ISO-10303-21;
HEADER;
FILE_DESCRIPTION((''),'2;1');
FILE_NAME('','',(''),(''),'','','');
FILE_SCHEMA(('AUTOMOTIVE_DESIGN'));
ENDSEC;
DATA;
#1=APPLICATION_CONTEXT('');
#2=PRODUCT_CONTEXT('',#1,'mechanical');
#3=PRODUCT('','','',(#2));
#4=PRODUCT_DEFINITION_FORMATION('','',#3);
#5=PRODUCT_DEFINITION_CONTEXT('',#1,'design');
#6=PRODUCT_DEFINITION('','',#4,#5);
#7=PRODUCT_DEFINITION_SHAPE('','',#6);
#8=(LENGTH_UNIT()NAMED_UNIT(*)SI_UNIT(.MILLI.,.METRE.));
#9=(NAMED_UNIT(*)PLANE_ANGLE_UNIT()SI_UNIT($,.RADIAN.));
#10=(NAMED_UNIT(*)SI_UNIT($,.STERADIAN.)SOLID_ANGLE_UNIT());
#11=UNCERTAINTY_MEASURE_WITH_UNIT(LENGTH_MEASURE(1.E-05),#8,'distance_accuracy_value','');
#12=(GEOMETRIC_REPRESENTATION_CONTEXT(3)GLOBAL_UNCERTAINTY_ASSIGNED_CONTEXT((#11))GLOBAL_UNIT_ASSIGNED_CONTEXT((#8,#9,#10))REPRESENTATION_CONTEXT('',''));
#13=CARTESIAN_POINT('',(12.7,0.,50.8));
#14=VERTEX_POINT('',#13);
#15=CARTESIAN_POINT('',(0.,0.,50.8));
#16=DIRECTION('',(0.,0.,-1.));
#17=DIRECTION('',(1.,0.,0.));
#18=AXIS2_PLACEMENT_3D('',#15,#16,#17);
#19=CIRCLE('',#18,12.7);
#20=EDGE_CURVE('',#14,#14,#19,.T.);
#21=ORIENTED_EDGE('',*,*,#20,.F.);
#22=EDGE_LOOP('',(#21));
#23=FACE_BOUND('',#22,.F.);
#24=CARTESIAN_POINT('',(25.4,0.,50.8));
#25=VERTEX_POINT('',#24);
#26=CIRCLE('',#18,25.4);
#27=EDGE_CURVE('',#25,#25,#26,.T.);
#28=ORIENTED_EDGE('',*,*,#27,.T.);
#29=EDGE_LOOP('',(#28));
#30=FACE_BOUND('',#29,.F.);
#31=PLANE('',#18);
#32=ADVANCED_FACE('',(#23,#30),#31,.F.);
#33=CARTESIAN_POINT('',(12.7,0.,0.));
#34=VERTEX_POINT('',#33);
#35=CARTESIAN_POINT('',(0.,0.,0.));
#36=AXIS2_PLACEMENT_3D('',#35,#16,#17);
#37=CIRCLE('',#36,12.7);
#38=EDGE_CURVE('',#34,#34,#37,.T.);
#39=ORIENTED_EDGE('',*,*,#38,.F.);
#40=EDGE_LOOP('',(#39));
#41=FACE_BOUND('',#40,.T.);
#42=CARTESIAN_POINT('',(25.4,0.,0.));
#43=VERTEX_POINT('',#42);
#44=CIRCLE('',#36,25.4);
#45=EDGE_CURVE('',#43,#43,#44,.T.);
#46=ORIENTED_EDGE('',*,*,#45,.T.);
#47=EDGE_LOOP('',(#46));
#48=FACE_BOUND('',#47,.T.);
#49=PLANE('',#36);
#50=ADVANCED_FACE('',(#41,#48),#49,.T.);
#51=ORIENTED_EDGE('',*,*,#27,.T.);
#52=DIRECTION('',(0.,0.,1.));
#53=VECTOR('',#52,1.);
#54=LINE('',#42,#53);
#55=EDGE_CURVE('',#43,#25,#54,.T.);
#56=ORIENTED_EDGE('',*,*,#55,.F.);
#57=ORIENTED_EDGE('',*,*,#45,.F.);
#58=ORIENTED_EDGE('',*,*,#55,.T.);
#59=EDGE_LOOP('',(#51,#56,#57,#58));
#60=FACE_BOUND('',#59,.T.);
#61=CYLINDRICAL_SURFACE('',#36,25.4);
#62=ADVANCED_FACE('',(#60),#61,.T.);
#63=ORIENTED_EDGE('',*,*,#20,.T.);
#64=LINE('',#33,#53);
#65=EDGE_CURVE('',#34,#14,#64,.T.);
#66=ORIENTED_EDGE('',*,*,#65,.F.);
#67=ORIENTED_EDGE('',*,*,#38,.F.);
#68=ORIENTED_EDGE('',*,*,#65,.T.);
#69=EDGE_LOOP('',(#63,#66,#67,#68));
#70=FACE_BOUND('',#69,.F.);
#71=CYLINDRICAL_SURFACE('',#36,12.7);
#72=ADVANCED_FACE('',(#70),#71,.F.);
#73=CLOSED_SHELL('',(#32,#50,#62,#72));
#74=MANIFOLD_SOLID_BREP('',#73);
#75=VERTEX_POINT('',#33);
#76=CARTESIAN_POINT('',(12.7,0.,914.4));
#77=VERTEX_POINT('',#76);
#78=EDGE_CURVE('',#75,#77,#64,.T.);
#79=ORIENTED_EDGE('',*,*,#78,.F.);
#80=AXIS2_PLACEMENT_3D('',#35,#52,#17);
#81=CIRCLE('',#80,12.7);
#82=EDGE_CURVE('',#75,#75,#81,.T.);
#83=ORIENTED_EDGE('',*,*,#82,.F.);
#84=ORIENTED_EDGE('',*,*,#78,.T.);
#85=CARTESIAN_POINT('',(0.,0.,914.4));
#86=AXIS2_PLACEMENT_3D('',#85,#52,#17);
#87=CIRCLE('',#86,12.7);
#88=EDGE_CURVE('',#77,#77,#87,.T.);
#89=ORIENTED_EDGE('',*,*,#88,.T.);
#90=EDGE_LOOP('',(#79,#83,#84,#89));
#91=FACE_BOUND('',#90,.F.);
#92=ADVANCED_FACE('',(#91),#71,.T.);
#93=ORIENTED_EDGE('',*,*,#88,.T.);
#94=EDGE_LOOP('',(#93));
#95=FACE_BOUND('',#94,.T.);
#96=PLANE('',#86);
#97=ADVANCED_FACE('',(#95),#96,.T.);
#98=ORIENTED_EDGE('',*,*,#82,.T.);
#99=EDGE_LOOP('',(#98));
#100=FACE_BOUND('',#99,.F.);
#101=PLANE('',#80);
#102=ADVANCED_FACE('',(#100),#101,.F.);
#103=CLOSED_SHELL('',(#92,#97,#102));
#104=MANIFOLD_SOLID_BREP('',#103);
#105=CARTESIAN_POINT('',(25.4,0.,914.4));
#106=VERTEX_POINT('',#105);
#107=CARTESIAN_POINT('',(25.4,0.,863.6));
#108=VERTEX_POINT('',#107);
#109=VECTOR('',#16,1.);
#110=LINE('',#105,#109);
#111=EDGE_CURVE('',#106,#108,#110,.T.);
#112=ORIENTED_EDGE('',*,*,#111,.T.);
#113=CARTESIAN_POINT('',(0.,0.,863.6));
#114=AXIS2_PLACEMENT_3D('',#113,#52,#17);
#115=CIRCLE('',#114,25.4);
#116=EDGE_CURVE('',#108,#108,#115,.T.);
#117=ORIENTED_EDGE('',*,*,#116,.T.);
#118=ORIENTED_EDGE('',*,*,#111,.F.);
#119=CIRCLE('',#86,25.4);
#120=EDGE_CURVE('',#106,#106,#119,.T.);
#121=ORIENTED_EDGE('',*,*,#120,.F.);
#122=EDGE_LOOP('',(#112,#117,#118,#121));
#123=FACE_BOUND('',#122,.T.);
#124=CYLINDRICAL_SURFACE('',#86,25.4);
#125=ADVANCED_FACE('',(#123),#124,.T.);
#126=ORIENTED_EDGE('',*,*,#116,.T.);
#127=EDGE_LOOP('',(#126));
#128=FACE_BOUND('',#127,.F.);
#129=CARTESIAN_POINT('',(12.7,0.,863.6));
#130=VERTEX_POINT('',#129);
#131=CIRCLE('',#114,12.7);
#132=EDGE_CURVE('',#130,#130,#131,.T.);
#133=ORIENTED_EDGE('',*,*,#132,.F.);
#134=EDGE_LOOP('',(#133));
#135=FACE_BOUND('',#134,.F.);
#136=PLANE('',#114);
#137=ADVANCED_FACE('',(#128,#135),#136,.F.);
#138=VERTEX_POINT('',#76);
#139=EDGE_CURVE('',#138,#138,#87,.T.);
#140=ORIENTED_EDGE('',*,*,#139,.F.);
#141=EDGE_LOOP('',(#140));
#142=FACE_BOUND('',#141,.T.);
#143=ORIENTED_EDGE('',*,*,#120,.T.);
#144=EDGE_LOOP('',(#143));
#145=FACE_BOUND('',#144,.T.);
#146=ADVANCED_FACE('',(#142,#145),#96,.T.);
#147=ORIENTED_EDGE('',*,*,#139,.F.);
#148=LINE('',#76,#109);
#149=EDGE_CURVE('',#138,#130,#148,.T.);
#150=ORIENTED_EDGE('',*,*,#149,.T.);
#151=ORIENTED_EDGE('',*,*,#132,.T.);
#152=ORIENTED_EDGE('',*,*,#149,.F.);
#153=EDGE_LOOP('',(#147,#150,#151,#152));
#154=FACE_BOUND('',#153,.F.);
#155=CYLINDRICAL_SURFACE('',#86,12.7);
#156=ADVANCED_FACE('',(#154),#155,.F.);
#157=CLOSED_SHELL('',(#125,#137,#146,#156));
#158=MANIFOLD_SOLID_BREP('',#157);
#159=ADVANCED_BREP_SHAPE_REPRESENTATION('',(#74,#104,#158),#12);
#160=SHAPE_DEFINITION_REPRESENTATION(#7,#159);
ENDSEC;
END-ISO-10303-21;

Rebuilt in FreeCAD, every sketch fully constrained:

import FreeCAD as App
import Part
import Sketcher

V = App.Vector
Q = App.Units.Quantity

doc = App.newDocument("Part")
body = doc.addObject("PartDesign::Body", "Body")

sketch1 = body.newObject("Sketcher::SketchObject", "Sketch")
sketch1.AttachmentSupport = (doc.getObject("XY_Plane"), [""])
sketch1.MapMode = "FlatFace"
sketch1.addGeometry(Part.Circle(V(0, 0, 0), V(0, 0, 1), 13), False)
sketch1.addConstraint([
    Sketcher.Constraint("Coincident", 0, 3, -1, 1),
    Sketcher.Constraint("Diameter", 0, Q("1 in")),
])
pad1 = body.newObject("PartDesign::Pad", "Pad")
pad1.Profile = sketch1
pad1.Length = Q("36 in")
body2 = doc.addObject("PartDesign::Body", "Body001")

sketch2 = body2.newObject("Sketcher::SketchObject", "Sketch001")
sketch2.AttachmentSupport = (doc.getObject("XY_Plane001"), [""])
sketch2.MapMode = "FlatFace"
sketch2.addGeometry([
    Part.Circle(V(0, 0, 0), V(0, 0, 1), 25),
    Part.Circle(V(0, 0, 0), V(0, 0, 1), 13),
], False)
sketch2.addConstraint([
    Sketcher.Constraint("Coincident", 0, 3, -1, 1),
    Sketcher.Constraint("Coincident", 1, 3, -1, 1),
    Sketcher.Constraint("Diameter", 0, Q("2 in")),
    Sketcher.Constraint("Diameter", 1, Q("1 in")),
])
pad2 = body2.newObject("PartDesign::Pad", "Pad001")
pad2.Profile = sketch2
pad2.Length = Q("2 in")
body3 = doc.addObject("PartDesign::Body", "Body002")

sketch3 = body3.newObject("Sketcher::SketchObject", "Sketch002")
sketch3.AttachmentSupport = (doc.getObject("XY_Plane002"), [""])
sketch3.MapMode = "FlatFace"
sketch3.AttachmentOffset = App.Placement(V(0, 0, 36 * 25.4), App.Rotation())
sketch3.addGeometry([
    Part.Circle(V(0, 0, 0), V(0, 0, 1), 25),
    Part.Circle(V(0, 0, 0), V(0, 0, 1), 13),
], False)
sketch3.addConstraint([
    Sketcher.Constraint("Coincident", 0, 3, -1, 1),
    Sketcher.Constraint("Coincident", 1, 3, -1, 1),
    Sketcher.Constraint("Diameter", 0, Q("2 in")),
    Sketcher.Constraint("Diameter", 1, Q("1 in")),
])
pad3 = body3.newObject("PartDesign::Pad", "Pad002")
pad3.Profile = sketch3
pad3.Length = Q("2 in")
pad3.Reversed = True

doc.recompute()
